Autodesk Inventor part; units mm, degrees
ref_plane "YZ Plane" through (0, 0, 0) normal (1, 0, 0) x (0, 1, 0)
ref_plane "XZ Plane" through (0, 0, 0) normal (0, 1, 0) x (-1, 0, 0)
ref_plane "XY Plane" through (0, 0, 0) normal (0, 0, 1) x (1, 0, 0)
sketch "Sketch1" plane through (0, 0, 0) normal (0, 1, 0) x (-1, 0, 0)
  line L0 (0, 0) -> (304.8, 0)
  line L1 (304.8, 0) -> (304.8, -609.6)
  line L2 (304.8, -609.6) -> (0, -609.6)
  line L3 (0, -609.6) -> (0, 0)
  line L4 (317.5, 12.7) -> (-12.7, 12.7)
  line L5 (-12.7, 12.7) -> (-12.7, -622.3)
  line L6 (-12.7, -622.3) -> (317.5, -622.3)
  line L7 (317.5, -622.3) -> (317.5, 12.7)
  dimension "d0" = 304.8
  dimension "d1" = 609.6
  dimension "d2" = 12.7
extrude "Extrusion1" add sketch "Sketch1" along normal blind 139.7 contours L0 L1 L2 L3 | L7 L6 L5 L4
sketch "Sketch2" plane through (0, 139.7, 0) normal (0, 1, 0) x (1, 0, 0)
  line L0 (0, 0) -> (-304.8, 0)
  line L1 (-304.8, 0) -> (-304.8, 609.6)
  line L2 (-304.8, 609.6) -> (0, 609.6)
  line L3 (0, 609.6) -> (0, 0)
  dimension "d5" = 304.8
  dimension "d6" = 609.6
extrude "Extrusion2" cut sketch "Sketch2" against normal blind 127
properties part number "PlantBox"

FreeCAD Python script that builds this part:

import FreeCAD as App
import Part
import Sketcher
Q = App.Units.Quantity

doc = App.newDocument("Part")
body = doc.addObject("PartDesign::Body", "Body")

# Sketch on XZ plane
sketch1 = doc.addObject("Sketcher::SketchObject", "Sketch")
body.addObject(sketch1)
sketch1.AttachmentSupport = (doc.XZ_Plane, [""])
sketch1.MapMode = "FlatFace"
sketch1.addGeometry([
    Part.LineSegment(App.Vector(-317.5, -622.3, 0), App.Vector(-317.5, 12.7, 0)),
    Part.LineSegment(App.Vector(-317.5, 12.7, 0), App.Vector(12.7, 12.7, 0)),
    Part.LineSegment(App.Vector(12.7, 12.7, 0), App.Vector(12.7, -622.3, 0)),
    Part.LineSegment(App.Vector(12.7, -622.3, 0), App.Vector(-317.5, -622.3, 0)),
], False)
sketch1.addConstraint([
    Sketcher.Constraint("Coincident", 0, 2, 1, 1),
    Sketcher.Constraint("Coincident", 1, 2, 2, 1),
    Sketcher.Constraint("Coincident", 2, 2, 3, 1),
    Sketcher.Constraint("Coincident", 3, 2, 0, 1),
    Sketcher.Constraint("Vertical", 0),
    Sketcher.Constraint("Horizontal", 1),
    Sketcher.Constraint("Vertical", 2),
    Sketcher.Constraint("Horizontal", 3),
    Sketcher.Constraint("DistanceY", -1, 1, 0, 2, Q("0.5 in")),
    Sketcher.Constraint("DistanceX", -1, 1, 1, 2, Q("0.5 in")),
    Sketcher.Constraint("DistanceX", 1, 1, 1, 2, Q("13 in")),
    Sketcher.Constraint("DistanceY", 0, 1, 0, 2, Q("25 in")),
])
pad1 = doc.addObject("PartDesign::Pad", "Pad")
body.addObject(pad1)
pad1.Profile = sketch1
pad1.Length = Q("5.5 in")
pad1.Reversed = True

# Sketch on XZ plane
sketch2 = doc.addObject("Sketcher::SketchObject", "Sketch001")
body.addObject(sketch2)
sketch2.AttachmentSupport = (doc.XZ_Plane, [""])
sketch2.MapMode = "FlatFace"
sketch2.AttachmentOffset = App.Placement(App.Vector(0, 0, -5.5 * 25.4), App.Rotation())
sketch2.addGeometry([
    Part.LineSegment(App.Vector(-304.8, 0, 0), App.Vector(0, 0, 0)),
    Part.LineSegment(App.Vector(0, 0, 0), App.Vector(0, -609.6, 0)),
    Part.LineSegment(App.Vector(0, -609.6, 0), App.Vector(-304.8, -609.6, 0)),
    Part.LineSegment(App.Vector(-304.8, -609.6, 0), App.Vector(-304.8, 0, 0)),
], False)
sketch2.addConstraint([
    Sketcher.Constraint("Coincident", 0, 2, 1, 1),
    Sketcher.Constraint("Coincident", 1, 2, 2, 1),
    Sketcher.Constraint("Coincident", 2, 2, 3, 1),
    Sketcher.Constraint("Coincident", 3, 2, 0, 1),
    Sketcher.Constraint("Horizontal", 0),
    Sketcher.Constraint("Vertical", 1),
    Sketcher.Constraint("Horizontal", 2),
    Sketcher.Constraint("Vertical", 3),
    Sketcher.Constraint("Coincident", 0, 2, -1, 1),
    Sketcher.Constraint("DistanceX", 0, 1, 0, 2, Q("12 in")),
    Sketcher.Constraint("DistanceY", 1, 2, 1, 1, Q("24 in")),
])
pocket1 = doc.addObject("PartDesign::Pocket", "Pocket")
body.addObject(pocket1)
pocket1.Profile = sketch2
pocket1.Length = Q("5 in")
pocket1.Reversed = True

doc.recompute()
